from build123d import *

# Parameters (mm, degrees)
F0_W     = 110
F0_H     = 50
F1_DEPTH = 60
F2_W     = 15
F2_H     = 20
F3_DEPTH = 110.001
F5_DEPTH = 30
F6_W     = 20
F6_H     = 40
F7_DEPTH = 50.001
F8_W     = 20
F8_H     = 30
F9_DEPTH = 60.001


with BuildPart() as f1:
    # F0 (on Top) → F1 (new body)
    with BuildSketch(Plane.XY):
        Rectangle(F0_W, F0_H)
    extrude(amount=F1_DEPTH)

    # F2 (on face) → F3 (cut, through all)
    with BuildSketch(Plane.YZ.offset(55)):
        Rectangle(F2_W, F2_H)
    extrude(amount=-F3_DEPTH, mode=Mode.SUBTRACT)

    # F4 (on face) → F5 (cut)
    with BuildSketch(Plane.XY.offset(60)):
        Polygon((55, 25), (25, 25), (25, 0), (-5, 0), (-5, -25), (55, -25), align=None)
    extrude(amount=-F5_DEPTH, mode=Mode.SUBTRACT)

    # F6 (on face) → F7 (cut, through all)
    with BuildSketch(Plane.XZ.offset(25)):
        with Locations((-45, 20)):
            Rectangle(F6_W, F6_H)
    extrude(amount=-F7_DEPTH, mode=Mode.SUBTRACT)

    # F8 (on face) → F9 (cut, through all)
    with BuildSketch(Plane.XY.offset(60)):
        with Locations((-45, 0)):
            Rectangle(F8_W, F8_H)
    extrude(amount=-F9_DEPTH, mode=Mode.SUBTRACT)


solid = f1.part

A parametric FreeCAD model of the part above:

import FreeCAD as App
import Part
import Sketcher


def add_polygon(sketch, points):
    """Adds a closed chain of lines whose ends are joined by coincident constraints."""
    first, n = sketch.GeometryCount, len(points)
    for a, b in zip(points, points[1:] + points[:1]):
        sketch.addGeometry(Part.LineSegment(App.Vector(*a, 0), App.Vector(*b, 0)), False)
    for i in range(n):
        sketch.addConstraint(Sketcher.Constraint("Coincident", first + i, 2, first + (i + 1) % n, 1))

doc = App.newDocument("Part")
params = doc.addObject("Spreadsheet::Sheet", "Params")
for row, (alias, value) in enumerate([
    ("sketch1_width", "110 mm"),
    ("sketch1_height", "50 mm"),
    ("pad1_length", "60 mm"),
    ("sketch2_width", "15 mm"),
    ("sketch2_height", "20 mm"),
    ("sketch3_width", "30 mm"),
    ("sketch3_height", "25 mm"),
    ("pocket2_length", "30 mm"),
    ("sketch4_width", "20 mm"),
    ("sketch4_height", "40 mm"),
    ("sketch5_width", "20 mm"),
    ("sketch5_height", "30 mm"),
], start=1):
    params.set(f"A{row}", alias)
    params.set(f"B{row}", "=" + value)
    params.setAlias(f"B{row}", alias)

body = doc.addObject("PartDesign::Body", "Body")

sketch1 = doc.addObject("Sketcher::SketchObject", "Sketch")
body.addObject(sketch1)
sketch1.AttachmentSupport = (doc.XY_Plane, [""])
sketch1.MapMode = "FlatFace"
add_polygon(sketch1, [(-55, 25), (-55, -25), (55, -25), (55, 25)])
sketch1.addConstraint([
    Sketcher.Constraint("Vertical", 0),
    Sketcher.Constraint("Horizontal", 1),
    Sketcher.Constraint("Vertical", 2),
    Sketcher.Constraint("Horizontal", 3),
    Sketcher.Constraint("Symmetric", 0, 2, 2, 2, -1, 1),
    Sketcher.Constraint("DistanceX", 1, 1, 1, 2, 110.0),
    Sketcher.Constraint("DistanceY", 0, 2, 0, 1, 50.0),
])
sketch1.setExpression("Constraints[9]", "Params.sketch1_width")
sketch1.setExpression("Constraints[10]", "Params.sketch1_height")
pad1 = doc.addObject("PartDesign::Pad", "Pad")
body.addObject(pad1)
pad1.Profile = sketch1
pad1.setExpression("Length", "Params.pad1_length")

sketch2 = doc.addObject("Sketcher::SketchObject", "Sketch001")
body.addObject(sketch2)
sketch2.AttachmentSupport = (doc.YZ_Plane, [""])
sketch2.MapMode = "FlatFace"
sketch2.AttachmentOffset = App.Placement(App.Vector(0, 0, 55), App.Rotation())
add_polygon(sketch2, [(-7.5, 10), (-7.5, -10), (7.5, -10), (7.5, 10)])
sketch2.addConstraint([
    Sketcher.Constraint("Vertical", 0),
    Sketcher.Constraint("Horizontal", 1),
    Sketcher.Constraint("Vertical", 2),
    Sketcher.Constraint("Horizontal", 3),
    Sketcher.Constraint("Symmetric", 0, 2, 2, 2, -1, 1),
    Sketcher.Constraint("DistanceX", 1, 1, 1, 2, 15.0),
    Sketcher.Constraint("DistanceY", 0, 2, 0, 1, 20.0),
])
sketch2.setExpression("Constraints[9]", "Params.sketch2_width")
sketch2.setExpression("Constraints[10]", "Params.sketch2_height")
pocket1 = doc.addObject("PartDesign::Pocket", "Pocket")
body.addObject(pocket1)
pocket1.Profile = sketch2
pocket1.Type = "ThroughAll"

sketch3 = doc.addObject("Sketcher::SketchObject", "Sketch002")
body.addObject(sketch3)
sketch3.AttachmentSupport = (doc.XY_Plane, [""])
sketch3.MapMode = "FlatFace"
sketch3.AttachmentOffset = App.Placement(App.Vector(0, 0, 60), App.Rotation())
add_polygon(sketch3, [(55, 25), (25, 25), (25, 0), (-5, 0), (-5, -25), (55, -25)])
sketch3.addConstraint([
    Sketcher.Constraint("Horizontal", 0),
    Sketcher.Constraint("Vertical", 1),
    Sketcher.Constraint("Horizontal", 2),
    Sketcher.Constraint("Vertical", 3),
    Sketcher.Constraint("Horizontal", 4),
    Sketcher.Constraint("Vertical", 5),
    Sketcher.Constraint("PointOnObject", 1, 2, -1),
    Sketcher.Constraint("Equal", 0, 2),
    Sketcher.Constraint("Equal", 1, 3),
    Sketcher.Constraint("DistanceX", 0, 2, 0, 1, 30.0),
    Sketcher.Constraint("DistanceY", 1, 2, 1, 1, 25.0),
    Sketcher.Constraint("DistanceX", -1, 1, 0, 2, 25.0),
])
sketch3.setExpression("Constraints[15]", "Params.sketch3_width")
sketch3.setExpression("Constraints[16]", "Params.sketch3_height")
pocket2 = doc.addObject("PartDesign::Pocket", "Pocket001")
body.addObject(pocket2)
pocket2.Profile = sketch3
pocket2.setExpression("Length", "Params.pocket2_length")

sketch4 = doc.addObject("Sketcher::SketchObject", "Sketch003")
body.addObject(sketch4)
sketch4.AttachmentSupport = (doc.XZ_Plane, [""])
sketch4.MapMode = "FlatFace"
sketch4.AttachmentOffset = App.Placement(App.Vector(0, 0, 25), App.Rotation())
add_polygon(sketch4, [(-55, 40), (-55, 0), (-35, 0), (-35, 40)])
sketch4.addConstraint([
    Sketcher.Constraint("Vertical", 0),
    Sketcher.Constraint("Horizontal", 1),
    Sketcher.Constraint("Vertical", 2),
    Sketcher.Constraint("Horizontal", 3),
    Sketcher.Constraint("PointOnObject", 0, 2, -1),
    Sketcher.Constraint("DistanceX", 1, 1, 1, 2, 20.0),
    Sketcher.Constraint("DistanceY", 0, 2, 0, 1, 40.0),
    Sketcher.Constraint("DistanceX", 0, 2, -1, 1, 55.0),
])
sketch4.setExpression("Constraints[9]", "Params.sketch4_width")
sketch4.setExpression("Constraints[10]", "Params.sketch4_height")
pocket3 = doc.addObject("PartDesign::Pocket", "Pocket002")
body.addObject(pocket3)
pocket3.Profile = sketch4
pocket3.Type = "ThroughAll"

sketch5 = doc.addObject("Sketcher::SketchObject", "Sketch004")
body.addObject(sketch5)
sketch5.AttachmentSupport = (doc.XY_Plane, [""])
sketch5.MapMode = "FlatFace"
sketch5.AttachmentOffset = App.Placement(App.Vector(0, 0, 60), App.Rotation())
add_polygon(sketch5, [(-55, 15), (-55, -15), (-35, -15), (-35, 15)])
sketch5.addConstraint([
    Sketcher.Constraint("Vertical", 0),
    Sketcher.Constraint("Horizontal", 1),
    Sketcher.Constraint("Vertical", 2),
    Sketcher.Constraint("Horizontal", 3),
    Sketcher.Constraint("DistanceX", 1, 1, 1, 2, 20.0),
    Sketcher.Constraint("DistanceY", 0, 2, 0, 1, 30.0),
    Sketcher.Constraint("DistanceX", 0, 2, -1, 1, 55.0),
    Sketcher.Constraint("DistanceY", 0, 2, -1, 1, 15.0),
])
sketch5.setExpression("Constraints[8]", "Params.sketch5_width")
sketch5.setExpression("Constraints[9]", "Params.sketch5_height")
pocket4 = doc.addObject("PartDesign::Pocket", "Pocket003")
body.addObject(pocket4)
pocket4.Profile = sketch5
pocket4.Type = "ThroughAll"

doc.recompute()
